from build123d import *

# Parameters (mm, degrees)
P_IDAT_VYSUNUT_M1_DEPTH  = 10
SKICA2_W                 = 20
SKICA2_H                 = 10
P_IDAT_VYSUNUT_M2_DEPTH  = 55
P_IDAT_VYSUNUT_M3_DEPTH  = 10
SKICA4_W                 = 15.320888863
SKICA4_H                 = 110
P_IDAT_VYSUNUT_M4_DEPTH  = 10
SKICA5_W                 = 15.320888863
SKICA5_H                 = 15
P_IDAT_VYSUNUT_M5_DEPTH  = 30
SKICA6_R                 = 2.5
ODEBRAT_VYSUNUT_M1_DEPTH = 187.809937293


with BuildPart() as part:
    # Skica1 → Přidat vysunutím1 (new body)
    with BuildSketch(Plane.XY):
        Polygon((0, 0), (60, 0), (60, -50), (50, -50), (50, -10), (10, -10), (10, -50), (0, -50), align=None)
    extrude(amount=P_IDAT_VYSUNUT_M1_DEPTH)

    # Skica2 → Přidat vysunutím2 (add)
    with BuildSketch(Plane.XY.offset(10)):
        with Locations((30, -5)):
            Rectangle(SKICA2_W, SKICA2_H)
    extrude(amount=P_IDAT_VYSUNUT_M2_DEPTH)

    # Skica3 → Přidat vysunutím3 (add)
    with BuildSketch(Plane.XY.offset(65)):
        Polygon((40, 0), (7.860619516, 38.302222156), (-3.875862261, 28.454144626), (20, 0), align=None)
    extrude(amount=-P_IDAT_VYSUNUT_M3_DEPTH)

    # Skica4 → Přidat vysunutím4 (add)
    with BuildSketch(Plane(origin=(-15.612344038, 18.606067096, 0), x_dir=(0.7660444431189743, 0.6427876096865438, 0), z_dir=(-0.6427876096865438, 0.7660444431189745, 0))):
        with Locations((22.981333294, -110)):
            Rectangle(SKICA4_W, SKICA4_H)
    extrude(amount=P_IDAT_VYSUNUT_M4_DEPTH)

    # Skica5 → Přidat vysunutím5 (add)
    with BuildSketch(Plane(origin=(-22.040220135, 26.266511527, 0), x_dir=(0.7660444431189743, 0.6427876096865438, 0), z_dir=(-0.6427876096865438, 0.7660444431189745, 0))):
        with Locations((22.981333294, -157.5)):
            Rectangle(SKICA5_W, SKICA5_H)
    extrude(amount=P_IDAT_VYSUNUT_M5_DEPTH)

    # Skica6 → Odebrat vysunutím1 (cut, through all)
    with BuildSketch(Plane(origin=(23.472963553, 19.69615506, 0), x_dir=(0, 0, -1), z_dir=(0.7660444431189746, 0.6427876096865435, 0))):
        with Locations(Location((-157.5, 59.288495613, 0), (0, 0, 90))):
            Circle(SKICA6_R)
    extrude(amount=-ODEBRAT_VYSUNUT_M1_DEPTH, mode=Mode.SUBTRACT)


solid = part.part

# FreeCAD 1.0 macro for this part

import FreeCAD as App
import Part
import Sketcher
from FreeCAD import Vector
Q = App.Units.Quantity

doc = App.newDocument("Part")
params = doc.addObject("Spreadsheet::Sheet", "Params")
for row, (alias, value) in enumerate([
    ("sketch1_width", "60 mm"),
    ("sketch1_width2", "10 mm"),
    ("sketch1_height", "50 mm"),
    ("pad1_length", "10 mm"),
    ("sketch2_width", "20 mm"),
    ("sketch2_height", "10 mm"),
    ("pad2_length", "55 mm"),
    ("sketch3_width", "20 mm"),
    ("sketch3_length", "50 mm"),
    ("pad3_length", "10 mm"),
    ("sketch4_height", "110 mm"),
    ("pad4_length", "10 mm"),
    ("sketch5_height", "15 mm"),
    ("pad5_length", "30 mm"),
    ("sketch6_diameter", "5 mm"),
], start=1):
    params.set(f"A{row}", alias)
    params.set(f"B{row}", "=" + value)
    params.setAlias(f"B{row}", alias)

body = doc.addObject("PartDesign::Body", "Body")

# Sketch on XY plane
sketch1 = body.newObject("Sketcher::SketchObject", "Sketch")
sketch1.AttachmentSupport = (doc.getObject("XY_Plane"), [""])
sketch1.MapMode = "FlatFace"
sketch1.addGeometry(Part.LineSegment(Vector(60, 0, 0), Vector(0, 0, 0)), False)
sketch1.addGeometry(Part.LineSegment(Vector(0, 0, 0), Vector(0, -50, 0)), False)
sketch1.addGeometry(Part.LineSegment(Vector(0, -50, 0), Vector(10, -50, 0)), False)
sketch1.addGeometry(Part.LineSegment(Vector(10, -50, 0), Vector(10, -10, 0)), False)
sketch1.addGeometry(Part.LineSegment(Vector(10, -10, 0), Vector(50, -10, 0)), False)
sketch1.addGeometry(Part.LineSegment(Vector(50, -10, 0), Vector(50, -50, 0)), False)
sketch1.addGeometry(Part.LineSegment(Vector(50, -50, 0), Vector(60, -50, 0)), False)
sketch1.addGeometry(Part.LineSegment(Vector(60, -50, 0), Vector(60, 0, 0)), False)
sketch1.addConstraint(Sketcher.Constraint("Coincident", 0, 2, 1, 1))
sketch1.addConstraint(Sketcher.Constraint("Coincident", 1, 2, 2, 1))
sketch1.addConstraint(Sketcher.Constraint("Coincident", 2, 2, 3, 1))
sketch1.addConstraint(Sketcher.Constraint("Coincident", 3, 2, 4, 1))
sketch1.addConstraint(Sketcher.Constraint("Coincident", 4, 2, 5, 1))
sketch1.addConstraint(Sketcher.Constraint("Coincident", 5, 2, 6, 1))
sketch1.addConstraint(Sketcher.Constraint("Coincident", 6, 2, 7, 1))
sketch1.addConstraint(Sketcher.Constraint("Coincident", 7, 2, 0, 1))
sketch1.addConstraint(Sketcher.Constraint("Horizontal", 0))
sketch1.addConstraint(Sketcher.Constraint("Vertical", 1))
sketch1.addConstraint(Sketcher.Constraint("Horizontal", 2))
sketch1.addConstraint(Sketcher.Constraint("Vertical", 3))
sketch1.addConstraint(Sketcher.Constraint("Horizontal", 4))
sketch1.addConstraint(Sketcher.Constraint("Vertical", 5))
sketch1.addConstraint(Sketcher.Constraint("Horizontal", 6))
sketch1.addConstraint(Sketcher.Constraint("Vertical", 7))
sketch1.addConstraint(Sketcher.Constraint("Coincident", 0, 2, -1, 1))
sketch1.addConstraint(Sketcher.Constraint("Horizontal", 2, 2, 5, 2))
sketch1.addConstraint(Sketcher.Constraint("Equal", 2, 6))
sketch1.addConstraint(Sketcher.Constraint("Equal", 4, 3))
sketch1.addConstraint(Sketcher.Constraint("DistanceX", 0, 2, 0, 1, Q("60 mm")))
sketch1.addConstraint(Sketcher.Constraint("DistanceX", 2, 1, 2, 2, Q("10 mm")))
sketch1.addConstraint(Sketcher.Constraint("DistanceY", 1, 2, 1, 1, Q("50 mm")))
sketch1.setExpression("Constraints[20]", "Params.sketch1_width")
sketch1.setExpression("Constraints[21]", "Params.sketch1_width2")
sketch1.setExpression("Constraints[22]", "Params.sketch1_height")
pad1 = body.newObject("PartDesign::Pad", "Pad")
pad1.Profile = sketch1
pad1.setExpression("Length", "Params.pad1_length")

# Sketch on XY plane
sketch2 = body.newObject("Sketcher::SketchObject", "Sketch001")
sketch2.AttachmentSupport = (doc.getObject("XY_Plane"), [""])
sketch2.MapMode = "FlatFace"
sketch2.AttachmentOffset = App.Placement(Vector(0, 0, 10), App.Rotation())
sketch2.addGeometry(Part.LineSegment(Vector(20, 0, 0), Vector(20, -10, 0)), False)
sketch2.addGeometry(Part.LineSegment(Vector(20, -10, 0), Vector(40, -10, 0)), False)
sketch2.addGeometry(Part.LineSegment(Vector(40, -10, 0), Vector(40, 0, 0)), False)
sketch2.addGeometry(Part.LineSegment(Vector(40, 0, 0), Vector(20, 0, 0)), False)
sketch2.addConstraint(Sketcher.Constraint("Coincident", 0, 2, 1, 1))
sketch2.addConstraint(Sketcher.Constraint("Coincident", 1, 2, 2, 1))
sketch2.addConstraint(Sketcher.Constraint("Coincident", 2, 2, 3, 1))
sketch2.addConstraint(Sketcher.Constraint("Coincident", 3, 2, 0, 1))
sketch2.addConstraint(Sketcher.Constraint("Vertical", 0))
sketch2.addConstraint(Sketcher.Constraint("Horizontal", 1))
sketch2.addConstraint(Sketcher.Constraint("Vertical", 2))
sketch2.addConstraint(Sketcher.Constraint("Horizontal", 3))
sketch2.addConstraint(Sketcher.Constraint("PointOnObject", 2, 2, -1))
sketch2.addConstraint(Sketcher.Constraint("DistanceX", 1, 1, 1, 2, Q("20 mm")))
sketch2.addConstraint(Sketcher.Constraint("DistanceY", 0, 2, 0, 1, Q("10 mm")))
sketch2.addConstraint(Sketcher.Constraint("DistanceX", -1, 1, 0, 2, Q("20 mm")))
sketch2.setExpression("Constraints[9]", "Params.sketch2_width")
sketch2.setExpression("Constraints[10]", "Params.sketch2_height")
pad2 = body.newObject("PartDesign::Pad", "Pad001")
pad2.Profile = sketch2
pad2.setExpression("Length", "Params.pad2_length")

# Sketch on XY plane
sketch3 = body.newObject("Sketcher::SketchObject", "Sketch002")
sketch3.AttachmentSupport = (doc.getObject("XY_Plane"), [""])
sketch3.MapMode = "FlatFace"
sketch3.AttachmentOffset = App.Placement(Vector(0, 0, 65), App.Rotation())
sketch3.addGeometry(Part.LineSegment(Vector(40, 0, 0), Vector(8, 38, 0)), False)
sketch3.addGeometry(Part.LineSegment(Vector(8, 38, 0), Vector(-4, 28, 0)), False)
sketch3.addGeometry(Part.LineSegment(Vector(-4, 28, 0), Vector(20, 0, 0)), False)
sketch3.addGeometry(Part.LineSegment(Vector(20, 0, 0), Vector(40, 0, 0)), False)
sketch3.addConstraint(Sketcher.Constraint("Coincident", 0, 2, 1, 1))
sketch3.addConstraint(Sketcher.Constraint("Coincident", 1, 2, 2, 1))
sketch3.addConstraint(Sketcher.Constraint("Coincident", 2, 2, 3, 1))
sketch3.addConstraint(Sketcher.Constraint("Coincident", 3, 2, 0, 1))
sketch3.addConstraint(Sketcher.Constraint("Horizontal", 3))
sketch3.addConstraint(Sketcher.Constraint("PointOnObject", 2, 2, -1))
sketch3.addConstraint(Sketcher.Constraint("Perpendicular", 0, 1))
sketch3.addConstraint(Sketcher.Constraint("Perpendicular", 1, 2))
sketch3.addConstraint(Sketcher.Constraint("DistanceX", 3, 1, 3, 2, Q("20 mm")))
sketch3.addConstraint(Sketcher.Constraint("Angle", 0, Q("130 deg")))
sketch3.addConstraint(Sketcher.Constraint("Distance", 0, Q("50 mm")))
sketch3.addConstraint(Sketcher.Constraint("DistanceX", -1, 1, 2, 2, Q("20 mm")))
sketch3.setExpression("Constraints[8]", "Params.sketch3_width")
sketch3.setExpression("Constraints[10]", "Params.sketch3_length")
pad3 = body.newObject("PartDesign::Pad", "Pad002")
pad3.Profile = sketch3
pad3.setExpression("Length", "Params.pad3_length")
pad3.Reversed = True

# Sketch on an angled plane
sketch4 = body.newObject("Sketcher::SketchObject", "Sketch003")
sketch4.Placement = App.Placement(Vector(-15.612344, 18.606067, 0), App.Rotation(Vector(0.766044443, 0.64278761, 0), Vector(0, 0, -1), Vector(-0.64278761, 0.766044443, 0), "ZXY"))
sketch4.addGeometry(Part.LineSegment(Vector(15, -55, 0), Vector(15, -165, 0)), False)
sketch4.addGeometry(Part.LineSegment(Vector(15, -165, 0), Vector(31, -165, 0)), False)
sketch4.addGeometry(Part.LineSegment(Vector(31, -165, 0), Vector(31, -55, 0)), False)
sketch4.addGeometry(Part.LineSegment(Vector(31, -55, 0), Vector(15, -55, 0)), False)
sketch4.addConstraint(Sketcher.Constraint("Coincident", 0, 2, 1, 1))
sketch4.addConstraint(Sketcher.Constraint("Coincident", 1, 2, 2, 1))
sketch4.addConstraint(Sketcher.Constraint("Coincident", 2, 2, 3, 1))
sketch4.addConstraint(Sketcher.Constraint("Coincident", 3, 2, 0, 1))
sketch4.addConstraint(Sketcher.Constraint("Vertical", 0))
sketch4.addConstraint(Sketcher.Constraint("Horizontal", 1))
sketch4.addConstraint(Sketcher.Constraint("Vertical", 2))
sketch4.addConstraint(Sketcher.Constraint("Horizontal", 3))
sketch4.addConstraint(Sketcher.Constraint("DistanceY", 0, 2, 0, 1, Q("110 mm")))
sketch4.addConstraint(Sketcher.Constraint("DistanceY", 0, 2, -1, 1, Q("165 mm")))
sketch4.addConstraint(Sketcher.Constraint("DistanceX", 1, 1, 1, 2, Q("15.320889 mm")))
sketch4.addConstraint(Sketcher.Constraint("DistanceX", -1, 1, 0, 2, Q("15.320889 mm")))
sketch4.setExpression("Constraints[8]", "Params.sketch4_height")
pad4 = body.newObject("PartDesign::Pad", "Pad003")
pad4.Profile = sketch4
pad4.setExpression("Length", "Params.pad4_length")

# Sketch on an angled plane
sketch5 = body.newObject("Sketcher::SketchObject", "Sketch004")
sketch5.Placement = App.Placement(Vector(-22.04022, 26.266512, 0), App.Rotation(Vector(0.766044443, 0.64278761, 0), Vector(0, 0, -1), Vector(-0.64278761, 0.766044443, 0), "ZXY"))
sketch5.addGeometry(Part.LineSegment(Vector(15, -150, 0), Vector(15, -165, 0)), False)
sketch5.addGeometry(Part.LineSegment(Vector(15, -165, 0), Vector(31, -165, 0)), False)
sketch5.addGeometry(Part.LineSegment(Vector(31, -165, 0), Vector(31, -150, 0)), False)
sketch5.addGeometry(Part.LineSegment(Vector(31, -150, 0), Vector(15, -150, 0)), False)
sketch5.addConstraint(Sketcher.Constraint("Coincident", 0, 2, 1, 1))
sketch5.addConstraint(Sketcher.Constraint("Coincident", 1, 2, 2, 1))
sketch5.addConstraint(Sketcher.Constraint("Coincident", 2, 2, 3, 1))
sketch5.addConstraint(Sketcher.Constraint("Coincident", 3, 2, 0, 1))
sketch5.addConstraint(Sketcher.Constraint("Vertical", 0))
sketch5.addConstraint(Sketcher.Constraint("Horizontal", 1))
sketch5.addConstraint(Sketcher.Constraint("Vertical", 2))
sketch5.addConstraint(Sketcher.Constraint("Horizontal", 3))
sketch5.addConstraint(Sketcher.Constraint("DistanceY", 0, 2, 0, 1, Q("15 mm")))
sketch5.addConstraint(Sketcher.Constraint("DistanceY", 0, 2, -1, 1, Q("165 mm")))
sketch5.addConstraint(Sketcher.Constraint("DistanceX", 1, 1, 1, 2, Q("15.320889 mm")))
sketch5.addConstraint(Sketcher.Constraint("DistanceX", -1, 1, 0, 2, Q("15.320889 mm")))
sketch5.setExpression("Constraints[8]", "Params.sketch5_height")
pad5 = body.newObject("PartDesign::Pad", "Pad004")
pad5.Profile = sketch5
pad5.setExpression("Length", "Params.pad5_length")

# Sketch on an angled plane
sketch6 = body.newObject("Sketcher::SketchObject", "Sketch005")
sketch6.Placement = App.Placement(Vector(23.472964, 19.696155, 0), App.Rotation(Vector(0, 0, -1), Vector(-0.64278761, 0.766044443, 0), Vector(0.766044443, 0.64278761, 0), "ZXY"))
sketch6.addGeometry(Part.Circle(Vector(-157.5, 59.3, 0), Vector(0, 0, 1), 2.5), False)
sketch6.addConstraint(Sketcher.Constraint("Diameter", 0, Q("5 mm")))
sketch6.addConstraint(Sketcher.Constraint("DistanceX", 0, 3, -1, 1, Q("157.5 mm")))
sketch6.addConstraint(Sketcher.Constraint("DistanceY", -1, 1, 0, 3, Q("59.288496 mm")))
sketch6.setExpression("Constraints[0]", "Params.sketch6_diameter")
pocket1 = body.newObject("PartDesign::Pocket", "Pocket")
pocket1.Profile = sketch6
pocket1.Type = "ThroughAll"

doc.recompute()
